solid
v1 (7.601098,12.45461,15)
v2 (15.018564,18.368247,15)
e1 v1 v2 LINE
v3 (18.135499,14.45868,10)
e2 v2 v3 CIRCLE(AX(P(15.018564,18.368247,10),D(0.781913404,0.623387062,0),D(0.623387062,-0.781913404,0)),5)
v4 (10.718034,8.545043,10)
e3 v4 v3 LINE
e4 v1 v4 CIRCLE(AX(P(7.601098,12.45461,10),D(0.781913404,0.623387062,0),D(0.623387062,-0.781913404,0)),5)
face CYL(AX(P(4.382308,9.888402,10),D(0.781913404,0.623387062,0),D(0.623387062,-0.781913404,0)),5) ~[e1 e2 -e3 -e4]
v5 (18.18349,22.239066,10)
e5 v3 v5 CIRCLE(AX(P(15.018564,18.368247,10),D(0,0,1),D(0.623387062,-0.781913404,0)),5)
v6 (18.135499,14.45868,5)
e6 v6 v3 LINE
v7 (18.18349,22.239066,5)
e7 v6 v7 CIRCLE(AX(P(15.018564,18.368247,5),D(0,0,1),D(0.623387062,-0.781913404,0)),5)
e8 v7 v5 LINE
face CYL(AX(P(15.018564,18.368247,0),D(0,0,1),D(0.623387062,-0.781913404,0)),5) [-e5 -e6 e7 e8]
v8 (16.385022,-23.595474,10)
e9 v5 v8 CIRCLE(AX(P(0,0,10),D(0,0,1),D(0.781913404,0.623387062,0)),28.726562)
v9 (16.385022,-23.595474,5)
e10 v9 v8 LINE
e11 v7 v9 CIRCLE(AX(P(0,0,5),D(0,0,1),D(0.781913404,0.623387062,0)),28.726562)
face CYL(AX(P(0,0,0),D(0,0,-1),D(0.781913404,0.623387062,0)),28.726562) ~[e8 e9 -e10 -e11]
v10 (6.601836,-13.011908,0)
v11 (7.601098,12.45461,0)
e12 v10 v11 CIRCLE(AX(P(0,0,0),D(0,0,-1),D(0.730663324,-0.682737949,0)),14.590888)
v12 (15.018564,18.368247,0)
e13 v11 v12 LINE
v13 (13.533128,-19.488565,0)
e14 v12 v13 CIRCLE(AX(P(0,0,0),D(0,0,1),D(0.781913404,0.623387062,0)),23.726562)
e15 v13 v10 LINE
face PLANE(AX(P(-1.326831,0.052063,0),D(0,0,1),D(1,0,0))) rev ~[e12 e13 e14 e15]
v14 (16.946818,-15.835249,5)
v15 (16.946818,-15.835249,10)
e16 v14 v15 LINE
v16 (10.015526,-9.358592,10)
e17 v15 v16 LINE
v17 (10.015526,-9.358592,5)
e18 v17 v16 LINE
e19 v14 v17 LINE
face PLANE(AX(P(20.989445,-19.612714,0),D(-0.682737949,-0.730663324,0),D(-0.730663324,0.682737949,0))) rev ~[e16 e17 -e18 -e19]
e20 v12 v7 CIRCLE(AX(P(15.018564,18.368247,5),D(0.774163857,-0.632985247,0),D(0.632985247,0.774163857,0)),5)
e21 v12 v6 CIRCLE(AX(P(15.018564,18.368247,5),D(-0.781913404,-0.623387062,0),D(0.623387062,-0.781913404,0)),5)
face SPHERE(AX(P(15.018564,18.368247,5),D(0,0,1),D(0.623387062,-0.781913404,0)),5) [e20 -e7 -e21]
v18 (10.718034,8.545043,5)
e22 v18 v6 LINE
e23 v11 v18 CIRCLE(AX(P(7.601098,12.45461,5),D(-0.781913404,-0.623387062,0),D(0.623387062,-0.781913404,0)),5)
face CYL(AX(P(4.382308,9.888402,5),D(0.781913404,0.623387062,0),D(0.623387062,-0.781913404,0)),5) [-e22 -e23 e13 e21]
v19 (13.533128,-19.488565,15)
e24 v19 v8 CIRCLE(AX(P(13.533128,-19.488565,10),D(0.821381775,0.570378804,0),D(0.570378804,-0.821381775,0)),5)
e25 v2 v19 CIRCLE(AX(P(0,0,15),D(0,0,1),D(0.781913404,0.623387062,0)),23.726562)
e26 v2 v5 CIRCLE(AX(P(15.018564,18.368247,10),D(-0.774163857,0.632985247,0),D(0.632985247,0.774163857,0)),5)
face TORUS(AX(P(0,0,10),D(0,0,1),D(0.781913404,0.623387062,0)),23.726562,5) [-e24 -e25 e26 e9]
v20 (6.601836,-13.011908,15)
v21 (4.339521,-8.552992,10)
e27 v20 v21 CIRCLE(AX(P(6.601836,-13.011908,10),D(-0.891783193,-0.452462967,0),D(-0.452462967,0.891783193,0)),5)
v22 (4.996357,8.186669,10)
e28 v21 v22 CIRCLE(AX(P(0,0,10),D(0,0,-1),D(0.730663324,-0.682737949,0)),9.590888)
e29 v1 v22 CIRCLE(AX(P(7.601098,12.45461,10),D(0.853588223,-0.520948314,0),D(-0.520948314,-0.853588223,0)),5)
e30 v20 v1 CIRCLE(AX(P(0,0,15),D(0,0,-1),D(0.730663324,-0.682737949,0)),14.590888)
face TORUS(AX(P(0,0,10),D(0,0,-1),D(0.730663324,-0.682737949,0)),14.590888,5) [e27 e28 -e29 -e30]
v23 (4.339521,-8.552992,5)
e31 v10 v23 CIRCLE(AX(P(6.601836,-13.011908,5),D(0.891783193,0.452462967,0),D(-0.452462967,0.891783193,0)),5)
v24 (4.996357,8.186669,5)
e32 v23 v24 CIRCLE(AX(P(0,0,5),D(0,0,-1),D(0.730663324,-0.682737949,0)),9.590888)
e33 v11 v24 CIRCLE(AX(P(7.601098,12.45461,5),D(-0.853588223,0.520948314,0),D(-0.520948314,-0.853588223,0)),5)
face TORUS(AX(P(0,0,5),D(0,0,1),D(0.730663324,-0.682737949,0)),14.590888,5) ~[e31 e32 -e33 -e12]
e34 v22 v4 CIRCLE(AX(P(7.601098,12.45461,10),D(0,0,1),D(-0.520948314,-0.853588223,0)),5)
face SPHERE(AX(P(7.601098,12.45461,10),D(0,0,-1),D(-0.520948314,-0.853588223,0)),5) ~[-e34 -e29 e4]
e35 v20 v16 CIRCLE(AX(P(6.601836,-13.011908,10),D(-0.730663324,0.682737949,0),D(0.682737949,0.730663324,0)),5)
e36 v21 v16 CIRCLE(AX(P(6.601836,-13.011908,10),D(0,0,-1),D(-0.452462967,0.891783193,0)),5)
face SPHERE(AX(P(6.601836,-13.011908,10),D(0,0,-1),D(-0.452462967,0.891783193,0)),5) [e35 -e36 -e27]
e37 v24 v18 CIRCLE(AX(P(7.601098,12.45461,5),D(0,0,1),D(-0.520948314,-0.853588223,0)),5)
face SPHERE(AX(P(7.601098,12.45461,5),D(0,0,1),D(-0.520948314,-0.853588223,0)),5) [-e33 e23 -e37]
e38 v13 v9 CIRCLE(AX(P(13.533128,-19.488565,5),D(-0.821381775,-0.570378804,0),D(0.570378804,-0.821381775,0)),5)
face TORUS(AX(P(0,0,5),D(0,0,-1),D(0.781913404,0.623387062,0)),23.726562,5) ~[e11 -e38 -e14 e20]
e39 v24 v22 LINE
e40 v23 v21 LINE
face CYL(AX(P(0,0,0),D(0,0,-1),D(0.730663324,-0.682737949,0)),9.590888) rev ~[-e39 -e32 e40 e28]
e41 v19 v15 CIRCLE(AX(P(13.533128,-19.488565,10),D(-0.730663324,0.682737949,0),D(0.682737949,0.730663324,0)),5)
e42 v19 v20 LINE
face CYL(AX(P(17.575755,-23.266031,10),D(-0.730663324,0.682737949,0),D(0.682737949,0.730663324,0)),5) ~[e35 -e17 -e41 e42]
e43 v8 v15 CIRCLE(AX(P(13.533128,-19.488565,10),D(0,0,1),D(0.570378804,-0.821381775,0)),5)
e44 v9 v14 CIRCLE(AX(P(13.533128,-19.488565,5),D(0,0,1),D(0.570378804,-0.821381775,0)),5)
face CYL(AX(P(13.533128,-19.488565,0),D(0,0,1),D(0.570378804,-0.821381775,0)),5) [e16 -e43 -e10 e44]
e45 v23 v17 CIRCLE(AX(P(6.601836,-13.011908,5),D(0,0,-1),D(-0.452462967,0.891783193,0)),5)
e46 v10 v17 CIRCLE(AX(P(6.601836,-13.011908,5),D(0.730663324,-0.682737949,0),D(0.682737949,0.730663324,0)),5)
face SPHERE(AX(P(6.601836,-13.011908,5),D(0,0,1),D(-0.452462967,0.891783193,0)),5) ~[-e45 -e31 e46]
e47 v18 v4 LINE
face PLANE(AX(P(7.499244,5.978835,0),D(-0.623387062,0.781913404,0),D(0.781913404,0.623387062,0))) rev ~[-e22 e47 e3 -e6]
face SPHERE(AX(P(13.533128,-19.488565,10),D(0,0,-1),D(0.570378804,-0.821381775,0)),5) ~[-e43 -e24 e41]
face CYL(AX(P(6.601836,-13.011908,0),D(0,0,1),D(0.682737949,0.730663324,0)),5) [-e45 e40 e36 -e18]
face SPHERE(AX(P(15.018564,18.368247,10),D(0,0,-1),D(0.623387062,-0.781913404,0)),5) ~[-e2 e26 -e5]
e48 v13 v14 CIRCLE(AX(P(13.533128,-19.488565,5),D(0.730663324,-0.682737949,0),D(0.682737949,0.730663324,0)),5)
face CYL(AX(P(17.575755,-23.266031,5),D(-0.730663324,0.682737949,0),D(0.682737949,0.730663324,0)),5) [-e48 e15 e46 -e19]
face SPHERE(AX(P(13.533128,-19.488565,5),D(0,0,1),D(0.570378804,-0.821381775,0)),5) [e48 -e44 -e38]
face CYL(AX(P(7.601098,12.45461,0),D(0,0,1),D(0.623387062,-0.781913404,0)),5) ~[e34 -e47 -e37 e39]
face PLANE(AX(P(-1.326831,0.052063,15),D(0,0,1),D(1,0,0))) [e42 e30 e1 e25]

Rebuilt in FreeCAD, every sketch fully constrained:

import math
import FreeCAD as App
import Part
import Sketcher

V = App.Vector

doc = App.newDocument("Part")
body = doc.addObject("PartDesign::Body", "Body")

# Sketch on XY plane
sketch1 = doc.addObject("Sketcher::SketchObject", "Sketch")
body.addObject(sketch1)
sketch1.AttachmentSupport = (doc.XY_Plane, [""])
sketch1.MapMode = "FlatFace"
sketch1.addGeometry([
    Part.LineSegment(V(7.499244, 5.978835, 0), V(22.461684, 17.907767, 0)),
    Part.ArcOfCircle(Part.Circle(V(0, 0, 0), V(0, 0, 1), 28.726562), math.radians(38.5639), math.radians(316.942032)),
    Part.LineSegment(V(20.989445, -19.612714, 0), V(7.00771, -6.548063, 0)),
    Part.ArcOfCircle(Part.Circle(V(0, 0, 0), V(0, 0, 1), 9.590888), math.radians(38.5639), math.radians(316.942032)),
], False)
sketch1.addConstraint([
    Sketcher.Constraint("Coincident", 0, 2, 1, 1),
    Sketcher.Constraint("Coincident", 1, 2, 2, 1),
    Sketcher.Constraint("Coincident", 2, 2, 3, 2),
    Sketcher.Constraint("Coincident", 3, 1, 0, 1),
    Sketcher.Constraint("Coincident", 1, 3, -1, 1),
    Sketcher.Constraint("Coincident", 3, 3, -1, 1),
    Sketcher.Constraint("Radius", 1, 28.726562),
    Sketcher.Constraint("Radius", 3, 9.590888),
    Sketcher.Constraint("DistanceY", 2, 2, 3, 1, 12.526898),
    Sketcher.Constraint("DistanceX", 3, 1, 1, 2, 13.490202),
    Sketcher.Constraint("DistanceX", -1, 1, 2, 2, 7.00771),
    Sketcher.Constraint("DistanceX", 1, 2, 0, 2, 1.472239),
])
pad1 = doc.addObject("PartDesign::Pad", "Pad")
body.addObject(pad1)
pad1.Profile = sketch1
pad1.Length = 15
doc.recompute()

fillet = doc.addObject("PartDesign::Fillet", "Fillet")
body.addObject(fillet)
fillet.Base = (pad1, ["Edge1"])
fillet.UseAllEdges = True
fillet.Radius = 5

doc.recompute()
